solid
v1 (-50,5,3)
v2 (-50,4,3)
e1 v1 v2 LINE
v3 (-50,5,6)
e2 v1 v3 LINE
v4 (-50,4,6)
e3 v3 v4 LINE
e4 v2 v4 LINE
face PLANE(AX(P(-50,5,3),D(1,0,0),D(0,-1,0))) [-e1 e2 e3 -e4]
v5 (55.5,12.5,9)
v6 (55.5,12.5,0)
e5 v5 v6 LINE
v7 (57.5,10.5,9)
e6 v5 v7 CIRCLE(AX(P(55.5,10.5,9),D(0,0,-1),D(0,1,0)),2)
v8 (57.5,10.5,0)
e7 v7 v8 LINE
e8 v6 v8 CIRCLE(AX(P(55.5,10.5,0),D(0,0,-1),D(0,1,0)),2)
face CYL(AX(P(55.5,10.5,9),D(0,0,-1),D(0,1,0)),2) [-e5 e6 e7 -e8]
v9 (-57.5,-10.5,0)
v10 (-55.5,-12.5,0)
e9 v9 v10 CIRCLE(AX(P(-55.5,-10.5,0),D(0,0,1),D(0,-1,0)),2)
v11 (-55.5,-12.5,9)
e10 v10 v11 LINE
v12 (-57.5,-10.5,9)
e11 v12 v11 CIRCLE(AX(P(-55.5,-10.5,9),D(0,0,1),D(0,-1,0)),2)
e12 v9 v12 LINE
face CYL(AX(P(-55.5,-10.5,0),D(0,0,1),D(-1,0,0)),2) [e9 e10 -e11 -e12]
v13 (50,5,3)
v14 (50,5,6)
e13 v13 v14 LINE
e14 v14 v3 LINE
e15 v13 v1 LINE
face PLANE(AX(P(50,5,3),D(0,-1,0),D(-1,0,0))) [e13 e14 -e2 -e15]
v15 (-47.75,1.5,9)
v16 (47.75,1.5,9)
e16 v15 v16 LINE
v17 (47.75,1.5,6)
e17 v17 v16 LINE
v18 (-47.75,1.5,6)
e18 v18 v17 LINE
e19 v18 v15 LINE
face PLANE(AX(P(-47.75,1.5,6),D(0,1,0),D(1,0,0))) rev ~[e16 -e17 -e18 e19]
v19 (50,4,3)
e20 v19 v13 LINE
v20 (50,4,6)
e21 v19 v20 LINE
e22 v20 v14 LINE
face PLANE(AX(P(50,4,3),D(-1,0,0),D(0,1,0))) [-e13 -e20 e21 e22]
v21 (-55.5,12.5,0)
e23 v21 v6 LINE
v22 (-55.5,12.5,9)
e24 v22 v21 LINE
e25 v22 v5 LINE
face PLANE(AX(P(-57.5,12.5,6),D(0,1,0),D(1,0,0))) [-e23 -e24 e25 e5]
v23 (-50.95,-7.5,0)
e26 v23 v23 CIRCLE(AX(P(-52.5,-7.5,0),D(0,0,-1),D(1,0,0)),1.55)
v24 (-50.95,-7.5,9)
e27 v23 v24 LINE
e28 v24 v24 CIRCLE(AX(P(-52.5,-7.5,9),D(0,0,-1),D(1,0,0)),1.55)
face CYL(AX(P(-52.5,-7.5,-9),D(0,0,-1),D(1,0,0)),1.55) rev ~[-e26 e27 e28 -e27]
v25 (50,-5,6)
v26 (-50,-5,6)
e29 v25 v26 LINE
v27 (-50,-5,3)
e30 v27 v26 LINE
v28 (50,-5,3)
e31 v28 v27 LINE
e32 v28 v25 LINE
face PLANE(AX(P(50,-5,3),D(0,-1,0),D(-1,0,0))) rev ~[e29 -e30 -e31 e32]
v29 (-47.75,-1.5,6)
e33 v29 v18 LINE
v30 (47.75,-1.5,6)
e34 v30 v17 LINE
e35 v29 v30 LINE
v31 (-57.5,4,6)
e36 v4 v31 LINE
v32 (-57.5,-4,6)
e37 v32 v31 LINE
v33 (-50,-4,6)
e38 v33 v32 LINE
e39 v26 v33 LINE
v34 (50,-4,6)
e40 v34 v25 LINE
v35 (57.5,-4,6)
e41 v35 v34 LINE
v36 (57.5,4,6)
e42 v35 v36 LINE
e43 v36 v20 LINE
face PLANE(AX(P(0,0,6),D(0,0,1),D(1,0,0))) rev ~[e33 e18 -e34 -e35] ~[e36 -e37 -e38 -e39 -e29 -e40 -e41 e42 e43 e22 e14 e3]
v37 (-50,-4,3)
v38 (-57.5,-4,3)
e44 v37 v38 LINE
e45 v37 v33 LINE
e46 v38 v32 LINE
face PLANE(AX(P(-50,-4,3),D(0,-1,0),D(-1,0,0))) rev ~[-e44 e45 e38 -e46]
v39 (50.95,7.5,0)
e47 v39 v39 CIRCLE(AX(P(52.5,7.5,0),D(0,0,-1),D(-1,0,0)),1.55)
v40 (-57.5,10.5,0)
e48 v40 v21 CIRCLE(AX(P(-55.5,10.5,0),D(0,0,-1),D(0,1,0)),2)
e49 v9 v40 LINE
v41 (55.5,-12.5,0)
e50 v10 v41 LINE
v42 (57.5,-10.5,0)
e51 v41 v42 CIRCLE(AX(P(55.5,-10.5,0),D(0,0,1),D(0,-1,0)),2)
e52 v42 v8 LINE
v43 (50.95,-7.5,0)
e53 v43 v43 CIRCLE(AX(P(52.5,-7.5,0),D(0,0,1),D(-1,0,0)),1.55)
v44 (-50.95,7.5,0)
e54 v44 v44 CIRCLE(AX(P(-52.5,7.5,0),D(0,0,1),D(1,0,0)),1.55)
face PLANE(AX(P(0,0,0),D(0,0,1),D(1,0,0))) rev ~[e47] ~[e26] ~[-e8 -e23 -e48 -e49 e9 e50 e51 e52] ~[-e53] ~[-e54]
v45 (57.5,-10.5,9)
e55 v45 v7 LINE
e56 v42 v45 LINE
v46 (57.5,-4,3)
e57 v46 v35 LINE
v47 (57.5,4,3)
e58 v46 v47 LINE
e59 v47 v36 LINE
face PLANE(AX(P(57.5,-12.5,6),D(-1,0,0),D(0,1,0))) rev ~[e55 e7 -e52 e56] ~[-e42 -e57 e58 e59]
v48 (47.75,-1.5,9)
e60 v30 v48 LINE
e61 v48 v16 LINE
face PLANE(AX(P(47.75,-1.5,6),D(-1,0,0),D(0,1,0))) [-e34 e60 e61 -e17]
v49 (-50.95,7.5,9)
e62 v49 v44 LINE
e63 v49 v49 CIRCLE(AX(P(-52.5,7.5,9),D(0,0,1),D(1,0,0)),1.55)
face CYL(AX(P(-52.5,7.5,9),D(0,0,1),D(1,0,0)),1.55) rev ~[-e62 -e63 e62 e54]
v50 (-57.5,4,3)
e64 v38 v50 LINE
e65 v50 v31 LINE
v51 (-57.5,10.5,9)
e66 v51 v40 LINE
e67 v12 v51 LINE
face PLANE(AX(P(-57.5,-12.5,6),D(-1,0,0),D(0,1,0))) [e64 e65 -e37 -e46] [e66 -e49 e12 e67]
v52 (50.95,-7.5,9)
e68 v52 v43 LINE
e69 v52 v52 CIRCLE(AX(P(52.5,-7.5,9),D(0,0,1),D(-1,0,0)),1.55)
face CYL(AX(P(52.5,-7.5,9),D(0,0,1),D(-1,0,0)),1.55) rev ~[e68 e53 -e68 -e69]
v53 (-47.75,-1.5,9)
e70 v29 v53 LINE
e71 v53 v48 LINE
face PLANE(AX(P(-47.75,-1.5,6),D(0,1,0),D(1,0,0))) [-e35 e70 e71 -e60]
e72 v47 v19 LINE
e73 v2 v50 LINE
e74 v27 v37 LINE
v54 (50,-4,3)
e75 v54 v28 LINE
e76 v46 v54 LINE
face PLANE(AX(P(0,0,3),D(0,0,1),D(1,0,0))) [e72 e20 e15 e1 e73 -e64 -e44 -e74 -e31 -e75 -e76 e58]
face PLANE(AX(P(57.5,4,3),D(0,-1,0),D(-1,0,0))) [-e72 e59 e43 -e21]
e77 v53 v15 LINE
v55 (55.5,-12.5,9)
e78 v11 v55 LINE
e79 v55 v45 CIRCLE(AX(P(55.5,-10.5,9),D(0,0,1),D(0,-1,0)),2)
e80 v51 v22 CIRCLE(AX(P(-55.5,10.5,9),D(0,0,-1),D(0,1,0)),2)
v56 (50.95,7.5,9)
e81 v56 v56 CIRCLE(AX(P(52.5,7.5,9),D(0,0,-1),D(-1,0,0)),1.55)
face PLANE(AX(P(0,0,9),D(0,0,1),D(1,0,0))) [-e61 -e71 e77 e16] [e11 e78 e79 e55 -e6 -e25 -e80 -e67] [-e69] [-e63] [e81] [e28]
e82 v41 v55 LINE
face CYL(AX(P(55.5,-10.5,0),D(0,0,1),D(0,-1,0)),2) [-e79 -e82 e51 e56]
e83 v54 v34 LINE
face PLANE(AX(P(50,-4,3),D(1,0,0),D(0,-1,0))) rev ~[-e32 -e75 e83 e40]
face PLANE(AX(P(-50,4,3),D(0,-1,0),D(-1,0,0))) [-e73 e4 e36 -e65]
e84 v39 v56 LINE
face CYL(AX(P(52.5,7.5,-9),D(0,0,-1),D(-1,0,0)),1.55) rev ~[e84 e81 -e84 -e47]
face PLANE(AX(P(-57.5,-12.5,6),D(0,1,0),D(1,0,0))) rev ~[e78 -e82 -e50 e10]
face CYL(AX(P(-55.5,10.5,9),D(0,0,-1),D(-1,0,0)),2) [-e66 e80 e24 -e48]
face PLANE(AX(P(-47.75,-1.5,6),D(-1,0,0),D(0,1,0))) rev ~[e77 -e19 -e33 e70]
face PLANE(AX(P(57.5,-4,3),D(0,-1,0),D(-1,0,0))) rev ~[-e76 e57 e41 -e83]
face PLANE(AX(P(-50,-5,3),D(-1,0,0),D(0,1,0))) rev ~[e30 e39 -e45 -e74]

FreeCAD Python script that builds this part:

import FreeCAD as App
import Part
import Sketcher
from FreeCAD import Vector
Q = App.Units.Quantity


def edges_at(feature, points):
    """Names of the edges that pass closest to the given points."""
    edges = feature.Shape.Edges
    near = lambda p: min(range(len(edges)), key=lambda i: edges[i].distToShape(Part.Vertex(*p))[0])
    return sorted({f"Edge{near(p) + 1}" for p in points})


def add_polygon(sketch, points):
    """Adds a closed chain of lines whose ends are joined by coincident constraints."""
    first, n = sketch.GeometryCount, len(points)
    for a, b in zip(points, points[1:] + points[:1]):
        sketch.addGeometry(Part.LineSegment(App.Vector(*a, 0), App.Vector(*b, 0)), False)
    for i in range(n):
        sketch.addConstraint(Sketcher.Constraint("Coincident", first + i, 2, first + (i + 1) % n, 1))

doc = App.newDocument("Part")
body = doc.addObject("PartDesign::Body", "Body")

sketch1 = body.newObject("Sketcher::SketchObject", "Sketch")
sketch1.AttachmentSupport = (doc.getObject("XY_Plane"), [""])
sketch1.MapMode = "FlatFace"
add_polygon(sketch1, [(-58, 12), (-58, -12), (58, -12), (58, 12)])
sketch1.addConstraint(Sketcher.Constraint("Vertical", 0))
sketch1.addConstraint(Sketcher.Constraint("Horizontal", 1))
sketch1.addConstraint(Sketcher.Constraint("Vertical", 2))
sketch1.addConstraint(Sketcher.Constraint("Horizontal", 3))
sketch1.addConstraint(Sketcher.Constraint("Symmetric", 0, 2, 2, 2, -1, 1))
sketch1.addConstraint(Sketcher.Constraint("DistanceX", 1, 1, 1, 2, Q("115 mm")))
sketch1.addConstraint(Sketcher.Constraint("DistanceY", 0, 2, 0, 1, Q("25 mm")))
pad1 = body.newObject("PartDesign::Pad", "Pad")
pad1.Profile = sketch1
pad1.Length = 3

sketch2 = body.newObject("Sketcher::SketchObject", "Sketch001")
sketch2.AttachmentSupport = (doc.getObject("XY_Plane"), [""])
sketch2.MapMode = "FlatFace"
sketch2.AttachmentOffset = App.Placement(Vector(0, 0, 3), App.Rotation())
add_polygon(sketch2, [(57.5, 12.5), (-57.5, 12.5), (-57.5, 4), (-50, 4), (-50, 5), (50, 5), (50, 4), (57.5, 4)])
add_polygon(sketch2, [(-57.5, -12.5), (57.5, -12.5), (57.5, -4), (50, -4), (50, -5), (-50, -5), (-50, -4), (-57.5, -4)])
sketch2.addConstraint(Sketcher.Constraint("Horizontal", 0))
sketch2.addConstraint(Sketcher.Constraint("Vertical", 1))
sketch2.addConstraint(Sketcher.Constraint("Horizontal", 2))
sketch2.addConstraint(Sketcher.Constraint("Vertical", 3))
sketch2.addConstraint(Sketcher.Constraint("Horizontal", 4))
sketch2.addConstraint(Sketcher.Constraint("Vertical", 5))
sketch2.addConstraint(Sketcher.Constraint("Horizontal", 6))
sketch2.addConstraint(Sketcher.Constraint("Vertical", 7))
sketch2.addConstraint(Sketcher.Constraint("Horizontal", 8))
sketch2.addConstraint(Sketcher.Constraint("Vertical", 9))
sketch2.addConstraint(Sketcher.Constraint("Horizontal", 10))
sketch2.addConstraint(Sketcher.Constraint("Vertical", 11))
sketch2.addConstraint(Sketcher.Constraint("Horizontal", 12))
sketch2.addConstraint(Sketcher.Constraint("Vertical", 13))
sketch2.addConstraint(Sketcher.Constraint("Horizontal", 14))
sketch2.addConstraint(Sketcher.Constraint("Vertical", 15))
sketch2.addConstraint(Sketcher.Constraint("Symmetric", 0, 2, 8, 2, -1, 1))
sketch2.addConstraint(Sketcher.Constraint("Symmetric", 2, 2, 10, 2, -1, 1))
sketch2.addConstraint(Sketcher.Constraint("Symmetric", 4, 2, 12, 2, -1, 1))
sketch2.addConstraint(Sketcher.Constraint("Symmetric", 6, 2, 14, 2, -1, 1))
sketch2.addConstraint(Sketcher.Constraint("Symmetric", 2, 2, 5, 2, -2))
sketch2.addConstraint(Sketcher.Constraint("Vertical", 7, 2, 8, 2))
sketch2.addConstraint(Sketcher.Constraint("DistanceX", 0, 2, 0, 1, Q("115 mm")))
sketch2.addConstraint(Sketcher.Constraint("DistanceX", 4, 1, 4, 2, Q("100 mm")))
sketch2.addConstraint(Sketcher.Constraint("DistanceY", 3, 1, 3, 2, Q("1 mm")))
sketch2.addConstraint(Sketcher.Constraint("DistanceY", 1, 2, 1, 1, Q("8.5 mm")))
sketch2.addConstraint(Sketcher.Constraint("DistanceY", -1, 1, 1, 2, Q("4 mm")))
pad2 = body.newObject("PartDesign::Pad", "Pad001")
pad2.Profile = sketch2
pad2.Length = 3

sketch3 = body.newObject("Sketcher::SketchObject", "Sketch002")
sketch3.AttachmentSupport = (doc.getObject("XY_Plane"), [""])
sketch3.MapMode = "FlatFace"
sketch3.AttachmentOffset = App.Placement(Vector(0, 0, 6), App.Rotation())
add_polygon(sketch3, [(-57.5, 12.5), (-57.5, -12.5), (57.5, -12.5), (57.5, 12.5)])
add_polygon(sketch3, [(47.8, -1.5), (-47.8, -1.5), (-47.8, 1.5), (47.8, 1.5)])
sketch3.addConstraint(Sketcher.Constraint("Vertical", 0))
sketch3.addConstraint(Sketcher.Constraint("Horizontal", 1))
sketch3.addConstraint(Sketcher.Constraint("Vertical", 2))
sketch3.addConstraint(Sketcher.Constraint("Horizontal", 3))
sketch3.addConstraint(Sketcher.Constraint("Horizontal", 4))
sketch3.addConstraint(Sketcher.Constraint("Vertical", 5))
sketch3.addConstraint(Sketcher.Constraint("Horizontal", 6))
sketch3.addConstraint(Sketcher.Constraint("Vertical", 7))
sketch3.addConstraint(Sketcher.Constraint("Symmetric", 0, 2, 2, 2, -1, 1))
sketch3.addConstraint(Sketcher.Constraint("Symmetric", 4, 2, 6, 2, -1, 1))
sketch3.addConstraint(Sketcher.Constraint("DistanceX", 1, 1, 1, 2, Q("115 mm")))
sketch3.addConstraint(Sketcher.Constraint("DistanceY", 0, 2, 0, 1, Q("25 mm")))
sketch3.addConstraint(Sketcher.Constraint("DistanceY", 5, 1, 5, 2, Q("3 mm")))
sketch3.addConstraint(Sketcher.Constraint("DistanceX", 4, 2, 4, 1, Q("95.5 mm")))
pad3 = body.newObject("PartDesign::Pad", "Pad002")
pad3.Profile = sketch3
pad3.Length = 3

sketch4 = body.newObject("Sketcher::SketchObject", "Sketch003")
sketch4.AttachmentSupport = (doc.getObject("XY_Plane"), [""])
sketch4.MapMode = "FlatFace"
sketch4.AttachmentOffset = App.Placement(Vector(0, 0, 9), App.Rotation())
sketch4.addGeometry(Part.Circle(Vector(-52.5, 7.5, 0), Vector(0, 0, 1), 1.6), False)
sketch4.addConstraint(Sketcher.Constraint("Diameter", 0, Q("3.1 mm")))
sketch4.addConstraint(Sketcher.Constraint("DistanceX", 0, 3, -1, 1, Q("52.5 mm")))
sketch4.addConstraint(Sketcher.Constraint("DistanceY", -1, 1, 0, 3, Q("7.5 mm")))
pocket1 = body.newObject("PartDesign::Pocket", "Pocket")
pocket1.Profile = sketch4
pocket1.Type = "ThroughAll"
doc.recompute()

polarpattern = body.newObject("PartDesign::PolarPattern", "PolarPattern")
polarpattern.Originals = [pocket1]
polarpattern.Axis = (doc.getObject("Y_Axis"), [""])
polarpattern.Angle = 360
polarpattern.Occurrences = 2
body.Tip = polarpattern
doc.recompute()

polarpattern2 = body.newObject("PartDesign::PolarPattern", "PolarPattern001")
polarpattern2.Originals = [pocket1]
polarpattern2.Axis = (doc.getObject("X_Axis"), [""])
polarpattern2.Angle = 360
polarpattern2.Occurrences = 2
body.Tip = polarpattern2
doc.recompute()

polarpattern3 = body.newObject("PartDesign::PolarPattern", "PolarPattern002")
polarpattern3.Originals = [pocket1]
polarpattern3.Axis = (doc.getObject("Z_Axis"), [""])
polarpattern3.Angle = 360
polarpattern3.Occurrences = 2
body.Tip = polarpattern3
doc.recompute()

fillet = body.newObject("PartDesign::Fillet", "Fillet")
fillet.Base = (polarpattern3, edges_at(polarpattern3, [
    (57.5, 12.5, 4.5),
    (57.5, 12.5, 4.5),
    (57.5, 12.5, 4.5),
    (57.5, -12.5, 4.5),
    (-57.5, 12.5, 4.5),
    (-57.5, -12.5, 4.5),
]))
fillet.Radius = 2

doc.recompute()
